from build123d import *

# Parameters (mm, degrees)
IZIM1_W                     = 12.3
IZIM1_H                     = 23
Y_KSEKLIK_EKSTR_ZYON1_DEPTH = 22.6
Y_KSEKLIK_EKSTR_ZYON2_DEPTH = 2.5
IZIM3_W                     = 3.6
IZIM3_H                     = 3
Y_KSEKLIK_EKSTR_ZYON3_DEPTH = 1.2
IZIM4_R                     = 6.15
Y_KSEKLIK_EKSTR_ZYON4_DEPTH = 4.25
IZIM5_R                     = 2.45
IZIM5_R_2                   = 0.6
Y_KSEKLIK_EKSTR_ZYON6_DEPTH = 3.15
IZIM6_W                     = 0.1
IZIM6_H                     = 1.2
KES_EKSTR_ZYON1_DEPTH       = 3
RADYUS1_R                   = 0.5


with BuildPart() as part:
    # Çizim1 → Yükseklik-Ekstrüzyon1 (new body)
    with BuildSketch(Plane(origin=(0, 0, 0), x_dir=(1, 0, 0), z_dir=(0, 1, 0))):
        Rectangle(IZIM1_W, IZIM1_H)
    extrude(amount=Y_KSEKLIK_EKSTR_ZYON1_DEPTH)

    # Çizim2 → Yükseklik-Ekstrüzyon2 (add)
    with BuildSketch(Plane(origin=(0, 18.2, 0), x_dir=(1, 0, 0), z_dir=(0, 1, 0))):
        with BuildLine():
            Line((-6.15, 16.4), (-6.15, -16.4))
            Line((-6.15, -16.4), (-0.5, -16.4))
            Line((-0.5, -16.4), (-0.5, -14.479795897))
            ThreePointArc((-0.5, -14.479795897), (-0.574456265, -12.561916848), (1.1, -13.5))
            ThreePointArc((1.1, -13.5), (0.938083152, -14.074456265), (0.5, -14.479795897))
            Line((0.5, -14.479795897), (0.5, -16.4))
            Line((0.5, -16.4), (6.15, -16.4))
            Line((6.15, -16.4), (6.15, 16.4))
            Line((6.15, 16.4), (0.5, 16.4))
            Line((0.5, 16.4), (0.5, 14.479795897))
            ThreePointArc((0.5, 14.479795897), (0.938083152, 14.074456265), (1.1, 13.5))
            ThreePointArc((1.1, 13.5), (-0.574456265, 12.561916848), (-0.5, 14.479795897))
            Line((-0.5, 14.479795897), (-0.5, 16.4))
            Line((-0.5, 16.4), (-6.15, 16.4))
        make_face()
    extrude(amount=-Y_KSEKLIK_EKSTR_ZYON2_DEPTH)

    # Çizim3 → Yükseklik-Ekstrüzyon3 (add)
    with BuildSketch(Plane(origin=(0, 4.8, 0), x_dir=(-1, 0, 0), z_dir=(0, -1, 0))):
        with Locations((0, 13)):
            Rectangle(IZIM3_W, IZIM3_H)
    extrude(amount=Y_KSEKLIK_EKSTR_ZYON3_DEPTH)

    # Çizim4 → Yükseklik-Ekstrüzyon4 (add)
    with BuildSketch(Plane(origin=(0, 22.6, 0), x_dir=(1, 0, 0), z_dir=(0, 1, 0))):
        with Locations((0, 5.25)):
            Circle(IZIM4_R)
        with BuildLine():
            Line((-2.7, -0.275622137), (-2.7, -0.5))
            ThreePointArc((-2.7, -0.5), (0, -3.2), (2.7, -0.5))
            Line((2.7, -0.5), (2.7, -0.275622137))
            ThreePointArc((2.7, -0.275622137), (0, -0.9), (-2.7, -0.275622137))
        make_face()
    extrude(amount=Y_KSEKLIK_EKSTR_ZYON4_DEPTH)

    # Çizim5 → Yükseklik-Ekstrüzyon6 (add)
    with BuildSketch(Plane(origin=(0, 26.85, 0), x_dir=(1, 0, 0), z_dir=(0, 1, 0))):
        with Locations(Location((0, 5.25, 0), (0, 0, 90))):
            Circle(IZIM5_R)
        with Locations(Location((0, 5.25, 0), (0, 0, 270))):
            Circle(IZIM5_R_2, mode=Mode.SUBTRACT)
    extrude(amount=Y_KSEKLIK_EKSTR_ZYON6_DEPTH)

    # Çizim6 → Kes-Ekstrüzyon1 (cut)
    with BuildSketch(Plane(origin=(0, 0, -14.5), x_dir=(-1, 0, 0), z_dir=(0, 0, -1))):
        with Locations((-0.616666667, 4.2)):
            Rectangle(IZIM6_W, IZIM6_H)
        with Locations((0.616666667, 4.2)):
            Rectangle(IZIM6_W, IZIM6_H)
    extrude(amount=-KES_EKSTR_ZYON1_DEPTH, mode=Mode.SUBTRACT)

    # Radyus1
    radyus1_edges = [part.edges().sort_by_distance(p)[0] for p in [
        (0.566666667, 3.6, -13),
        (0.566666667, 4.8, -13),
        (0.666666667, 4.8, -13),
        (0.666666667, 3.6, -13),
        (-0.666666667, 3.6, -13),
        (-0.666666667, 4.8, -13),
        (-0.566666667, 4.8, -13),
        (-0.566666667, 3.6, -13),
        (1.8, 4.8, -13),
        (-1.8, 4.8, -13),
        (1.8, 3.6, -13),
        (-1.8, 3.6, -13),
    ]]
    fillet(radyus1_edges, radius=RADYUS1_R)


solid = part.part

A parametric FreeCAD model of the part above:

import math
import FreeCAD as App
import Part
import Sketcher
from FreeCAD import Vector


def edges_at(feature, points):
    """Names of the edges that pass closest to the given points."""
    edges = feature.Shape.Edges
    near = lambda p: min(range(len(edges)), key=lambda i: edges[i].distToShape(Part.Vertex(*p))[0])
    return sorted({f"Edge{near(p) + 1}" for p in points})

doc = App.newDocument("Part")
body = doc.addObject("PartDesign::Body", "Body")

# Sketch on XZ plane
sketch1 = body.newObject("Sketcher::SketchObject", "Sketch")
sketch1.AttachmentSupport = (doc.getObject("XZ_Plane"), [""])
sketch1.MapMode = "FlatFace"
sketch1.addGeometry(Part.LineSegment(Vector(-6, -12, 0), Vector(-6, 12, 0)), False)
sketch1.addGeometry(Part.LineSegment(Vector(-6, 12, 0), Vector(6, 12, 0)), False)
sketch1.addGeometry(Part.LineSegment(Vector(6, 12, 0), Vector(6, -12, 0)), False)
sketch1.addGeometry(Part.LineSegment(Vector(6, -12, 0), Vector(-6, -12, 0)), False)
sketch1.addConstraint(Sketcher.Constraint("Coincident", 0, 2, 1, 1))
sketch1.addConstraint(Sketcher.Constraint("Coincident", 1, 2, 2, 1))
sketch1.addConstraint(Sketcher.Constraint("Coincident", 2, 2, 3, 1))
sketch1.addConstraint(Sketcher.Constraint("Coincident", 3, 2, 0, 1))
sketch1.addConstraint(Sketcher.Constraint("Vertical", 0))
sketch1.addConstraint(Sketcher.Constraint("Horizontal", 1))
sketch1.addConstraint(Sketcher.Constraint("Vertical", 2))
sketch1.addConstraint(Sketcher.Constraint("Horizontal", 3))
sketch1.addConstraint(Sketcher.Constraint("Symmetric", 0, 2, 2, 2, -1, 1))
sketch1.addConstraint(Sketcher.Constraint("DistanceY", 0, 1, 0, 2, 23.0))
sketch1.addConstraint(Sketcher.Constraint("DistanceX", 1, 1, 1, 2, 12.3))
pad1 = body.newObject("PartDesign::Pad", "Pad")
pad1.Profile = sketch1
pad1.Length = 22.6
pad1.Reversed = True

# Sketch on XZ plane
sketch2 = body.newObject("Sketcher::SketchObject", "Sketch001")
sketch2.AttachmentSupport = (doc.getObject("XZ_Plane"), [""])
sketch2.MapMode = "FlatFace"
sketch2.AttachmentOffset = App.Placement(Vector(0, 0, -18.2), App.Rotation())
sketch2.addGeometry(Part.LineSegment(Vector(-6.2, -16.4, 0), Vector(-6.2, 16.4, 0)), False)
sketch2.addGeometry(Part.LineSegment(Vector(-6.2, 16.4, 0), Vector(-0.5, 16.4, 0)), False)
sketch2.addGeometry(Part.LineSegment(Vector(-0.5, 16.4, 0), Vector(-0.5, 14.5, 0)), False)
sketch2.addGeometry(Part.ArcOfCircle(Part.Circle(Vector(0, 13.5, 0), Vector(0, 0, 1), 1.1), math.radians(117), math.radians(360)), False)
sketch2.addGeometry(Part.ArcOfCircle(Part.Circle(Vector(0, 13.5, 0), Vector(0, 0, 1), 1.1), math.radians(0), math.radians(63)), False)
sketch2.addGeometry(Part.LineSegment(Vector(0.5, 14.5, 0), Vector(0.5, 16.4, 0)), False)
sketch2.addGeometry(Part.LineSegment(Vector(0.5, 16.4, 0), Vector(6.2, 16.4, 0)), False)
sketch2.addGeometry(Part.LineSegment(Vector(6.2, 16.4, 0), Vector(6.2, -16.4, 0)), False)
sketch2.addGeometry(Part.LineSegment(Vector(6.2, -16.4, 0), Vector(0.5, -16.4, 0)), False)
sketch2.addGeometry(Part.LineSegment(Vector(0.5, -16.4, 0), Vector(0.5, -14.5, 0)), False)
sketch2.addGeometry(Part.ArcOfCircle(Part.Circle(Vector(0, -13.5, 0), Vector(0, 0, 1), 1.1), math.radians(-63), math.radians(0)), False)
sketch2.addGeometry(Part.ArcOfCircle(Part.Circle(Vector(0, -13.5, 0), Vector(0, 0, 1), 1.1), math.radians(0), math.radians(243)), False)
sketch2.addGeometry(Part.LineSegment(Vector(-0.5, -14.5, 0), Vector(-0.5, -16.4, 0)), False)
sketch2.addGeometry(Part.LineSegment(Vector(-0.5, -16.4, 0), Vector(-6.2, -16.4, 0)), False)
sketch2.addConstraint(Sketcher.Constraint("Coincident", 0, 2, 1, 1))
sketch2.addConstraint(Sketcher.Constraint("Coincident", 1, 2, 2, 1))
sketch2.addConstraint(Sketcher.Constraint("Coincident", 2, 2, 3, 1))
sketch2.addConstraint(Sketcher.Constraint("Tangent", 3, 2, 4, 1))
sketch2.addConstraint(Sketcher.Constraint("Coincident", 4, 2, 5, 1))
sketch2.addConstraint(Sketcher.Constraint("Coincident", 5, 2, 6, 1))
sketch2.addConstraint(Sketcher.Constraint("Coincident", 6, 2, 7, 1))
sketch2.addConstraint(Sketcher.Constraint("Coincident", 7, 2, 8, 1))
sketch2.addConstraint(Sketcher.Constraint("Coincident", 8, 2, 9, 1))
sketch2.addConstraint(Sketcher.Constraint("Coincident", 9, 2, 10, 1))
sketch2.addConstraint(Sketcher.Constraint("Tangent", 10, 2, 11, 1))
sketch2.addConstraint(Sketcher.Constraint("Coincident", 11, 2, 12, 1))
sketch2.addConstraint(Sketcher.Constraint("Coincident", 12, 2, 13, 1))
sketch2.addConstraint(Sketcher.Constraint("Coincident", 13, 2, 0, 1))
sketch2.addConstraint(Sketcher.Constraint("Vertical", 0))
sketch2.addConstraint(Sketcher.Constraint("Horizontal", 1))
sketch2.addConstraint(Sketcher.Constraint("Vertical", 2))
sketch2.addConstraint(Sketcher.Constraint("Vertical", 5))
sketch2.addConstraint(Sketcher.Constraint("Horizontal", 6))
sketch2.addConstraint(Sketcher.Constraint("Vertical", 7))
sketch2.addConstraint(Sketcher.Constraint("Horizontal", 8))
sketch2.addConstraint(Sketcher.Constraint("Vertical", 9))
sketch2.addConstraint(Sketcher.Constraint("Vertical", 12))
sketch2.addConstraint(Sketcher.Constraint("Horizontal", 13))
sketch2.addConstraint(Sketcher.Constraint("Equal", 3, 4))
sketch2.addConstraint(Sketcher.Constraint("Equal", 4, 10))
sketch2.addConstraint(Sketcher.Constraint("Equal", 10, 11))
sketch2.addConstraint(Sketcher.Constraint("Symmetric", 3, 3, 10, 3, -1, 1))
sketch2.addConstraint(Sketcher.Constraint("Symmetric", 0, 2, 7, 2, -1, 1))
sketch2.addConstraint(Sketcher.Constraint("Symmetric", 5, 2, 12, 2, -1, 1))
sketch2.addConstraint(Sketcher.Constraint("Symmetric", 2, 2, 4, 2, -2))
sketch2.addConstraint(Sketcher.Constraint("Symmetric", 8, 2, 12, 2, -2))
sketch2.addConstraint(Sketcher.Constraint("Horizontal", 4, 3, 3, 2))
sketch2.addConstraint(Sketcher.Constraint("Horizontal", 11, 3, 10, 2))
sketch2.addConstraint(Sketcher.Constraint("Radius", 3, 1.1))
sketch2.addConstraint(Sketcher.Constraint("DistanceY", 0, 1, 0, 2, 32.8))
sketch2.addConstraint(Sketcher.Constraint("DistanceY", 10, 3, 3, 3, 27.0))
sketch2.addConstraint(Sketcher.Constraint("DistanceX", 2, 2, 4, 2, 1.0))
sketch2.addConstraint(Sketcher.Constraint("DistanceX", 1, 1, 1, 2, 5.65))
pad2 = body.newObject("PartDesign::Pad", "Pad001")
pad2.Profile = sketch2
pad2.Length = 2.5

# Sketch on XZ plane
sketch3 = body.newObject("Sketcher::SketchObject", "Sketch002")
sketch3.AttachmentSupport = (doc.getObject("XZ_Plane"), [""])
sketch3.MapMode = "FlatFace"
sketch3.AttachmentOffset = App.Placement(Vector(0, 0, -4.8), App.Rotation())
sketch3.addGeometry(Part.LineSegment(Vector(1.8, -14.5, 0), Vector(1.8, -11.5, 0)), False)
sketch3.addGeometry(Part.LineSegment(Vector(1.8, -11.5, 0), Vector(-1.8, -11.5, 0)), False)
sketch3.addGeometry(Part.LineSegment(Vector(-1.8, -11.5, 0), Vector(-1.8, -14.5, 0)), False)
sketch3.addGeometry(Part.LineSegment(Vector(-1.8, -14.5, 0), Vector(1.8, -14.5, 0)), False)
sketch3.addConstraint(Sketcher.Constraint("Coincident", 0, 2, 1, 1))
sketch3.addConstraint(Sketcher.Constraint("Coincident", 1, 2, 2, 1))
sketch3.addConstraint(Sketcher.Constraint("Coincident", 2, 2, 3, 1))
sketch3.addConstraint(Sketcher.Constraint("Coincident", 3, 2, 0, 1))
sketch3.addConstraint(Sketcher.Constraint("Vertical", 0))
sketch3.addConstraint(Sketcher.Constraint("Horizontal", 1))
sketch3.addConstraint(Sketcher.Constraint("Vertical", 2))
sketch3.addConstraint(Sketcher.Constraint("Horizontal", 3))
sketch3.addConstraint(Sketcher.Constraint("DistanceY", 0, 1, 0, 2, 3.0))
sketch3.addConstraint(Sketcher.Constraint("DistanceX", 1, 2, 1, 1, 3.6))
sketch3.addConstraint(Sketcher.Constraint("DistanceX", -1, 1, 0, 2, 1.8))
sketch3.addConstraint(Sketcher.Constraint("DistanceY", 0, 2, -1, 1, 11.5))
pad3 = body.newObject("PartDesign::Pad", "Pad002")
pad3.Profile = sketch3
pad3.Length = 1.2

# Sketch on XZ plane
sketch4 = body.newObject("Sketcher::SketchObject", "Sketch003")
sketch4.AttachmentSupport = (doc.getObject("XZ_Plane"), [""])
sketch4.MapMode = "FlatFace"
sketch4.AttachmentOffset = App.Placement(Vector(0, 0, -22.6), App.Rotation())
sketch4.addGeometry(Part.LineSegment(Vector(-2.7, 0.28, 0), Vector(-2.7, 0.5, 0)), False)
sketch4.addGeometry(Part.ArcOfCircle(Part.Circle(Vector(0, 0.5, 0), Vector(0, 0, 1), 2.7), math.radians(0), math.radians(180)), False)
sketch4.addGeometry(Part.LineSegment(Vector(2.7, 0.5, 0), Vector(2.7, 0.28, 0)), False)
sketch4.addGeometry(Part.ArcOfCircle(Part.Circle(Vector(0, -5.25, 0), Vector(0, 0, 1), 6.15), math.radians(116), math.radians(424)), False)
sketch4.addConstraint(Sketcher.Constraint("Tangent", 0, 2, 1, 2))
sketch4.addConstraint(Sketcher.Constraint("Tangent", 1, 1, 2, 1))
sketch4.addConstraint(Sketcher.Constraint("Coincident", 2, 2, 3, 2))
sketch4.addConstraint(Sketcher.Constraint("Coincident", 3, 1, 0, 1))
sketch4.addConstraint(Sketcher.Constraint("Vertical", 0))
sketch4.addConstraint(Sketcher.Constraint("Vertical", 2))
sketch4.addConstraint(Sketcher.Constraint("Symmetric", 2, 2, 3, 1, -2))
sketch4.addConstraint(Sketcher.Constraint("Radius", 1, 2.7))
sketch4.addConstraint(Sketcher.Constraint("Radius", 3, 6.15))
sketch4.addConstraint(Sketcher.Constraint("DistanceY", -1, 1, 1, 3, 0.5))
sketch4.addConstraint(Sketcher.Constraint("DistanceY", 3, 3, -1, 1, 5.25))
pad4 = body.newObject("PartDesign::Pad", "Pad003")
pad4.Profile = sketch4
pad4.Length = 4.25
pad4.Reversed = True

# Sketch on XZ plane
sketch5 = body.newObject("Sketcher::SketchObject", "Sketch004")
sketch5.AttachmentSupport = (doc.getObject("XZ_Plane"), [""])
sketch5.MapMode = "FlatFace"
sketch5.AttachmentOffset = App.Placement(Vector(0, 0, -26.85), App.Rotation())
sketch5.addGeometry(Part.Circle(Vector(0, -5.2, 0), Vector(0, 0, 1), 2.5), False)
sketch5.addGeometry(Part.Circle(Vector(0, -5.2, 0), Vector(0, 0, 1), 0.6), False)
sketch5.addConstraint(Sketcher.Constraint("Coincident", 1, 3, 0, 3))
sketch5.addConstraint(Sketcher.Constraint("PointOnObject", 0, 3, -2))
sketch5.addConstraint(Sketcher.Constraint("Diameter", 0, 4.9))
sketch5.addConstraint(Sketcher.Constraint("Diameter", 1, 1.2))
sketch5.addConstraint(Sketcher.Constraint("DistanceY", 0, 3, -1, 1, 5.25))
pad5 = body.newObject("PartDesign::Pad", "Pad004")
pad5.Profile = sketch5
pad5.Length = 3.15
pad5.Reversed = True

# Sketch on XY plane
sketch6 = body.newObject("Sketcher::SketchObject", "Sketch005")
sketch6.AttachmentSupport = (doc.getObject("XY_Plane"), [""])
sketch6.MapMode = "FlatFace"
sketch6.AttachmentOffset = App.Placement(Vector(0, 0, -14.5), App.Rotation())
sketch6.addGeometry(Part.LineSegment(Vector(0.67, 4.8, 0), Vector(0.67, 3.6, 0)), False)
sketch6.addGeometry(Part.LineSegment(Vector(0.67, 3.6, 0), Vector(0.57, 3.6, 0)), False)
sketch6.addGeometry(Part.LineSegment(Vector(0.57, 3.6, 0), Vector(0.57, 4.8, 0)), False)
sketch6.addGeometry(Part.LineSegment(Vector(0.57, 4.8, 0), Vector(0.67, 4.8, 0)), False)
sketch6.addGeometry(Part.LineSegment(Vector(-0.57, 4.8, 0), Vector(-0.57, 3.6, 0)), False)
sketch6.addGeometry(Part.LineSegment(Vector(-0.57, 3.6, 0), Vector(-0.67, 3.6, 0)), False)
sketch6.addGeometry(Part.LineSegment(Vector(-0.67, 3.6, 0), Vector(-0.67, 4.8, 0)), False)
sketch6.addGeometry(Part.LineSegment(Vector(-0.67, 4.8, 0), Vector(-0.57, 4.8, 0)), False)
sketch6.addConstraint(Sketcher.Constraint("Coincident", 0, 2, 1, 1))
sketch6.addConstraint(Sketcher.Constraint("Coincident", 1, 2, 2, 1))
sketch6.addConstraint(Sketcher.Constraint("Coincident", 2, 2, 3, 1))
sketch6.addConstraint(Sketcher.Constraint("Coincident", 3, 2, 0, 1))
sketch6.addConstraint(Sketcher.Constraint("Coincident", 4, 2, 5, 1))
sketch6.addConstraint(Sketcher.Constraint("Coincident", 5, 2, 6, 1))
sketch6.addConstraint(Sketcher.Constraint("Coincident", 6, 2, 7, 1))
sketch6.addConstraint(Sketcher.Constraint("Coincident", 7, 2, 4, 1))
sketch6.addConstraint(Sketcher.Constraint("Vertical", 0))
sketch6.addConstraint(Sketcher.Constraint("Horizontal", 1))
sketch6.addConstraint(Sketcher.Constraint("Vertical", 2))
sketch6.addConstraint(Sketcher.Constraint("Horizontal", 3))
sketch6.addConstraint(Sketcher.Constraint("Vertical", 4))
sketch6.addConstraint(Sketcher.Constraint("Horizontal", 5))
sketch6.addConstraint(Sketcher.Constraint("Vertical", 6))
sketch6.addConstraint(Sketcher.Constraint("Horizontal", 7))
sketch6.addConstraint(Sketcher.Constraint("Symmetric", 1, 2, 4, 2, -2))
sketch6.addConstraint(Sketcher.Constraint("Symmetric", 3, 2, 6, 2, -2))
sketch6.addConstraint(Sketcher.Constraint("DistanceX", 1, 2, 1, 1, 0.1))
sketch6.addConstraint(Sketcher.Constraint("DistanceY", 0, 2, 0, 1, 1.2))
sketch6.addConstraint(Sketcher.Constraint("DistanceY", -1, 1, 0, 2, 3.6))
sketch6.addConstraint(Sketcher.Constraint("DistanceX", -1, 1, 0, 2, 0.666667))
pocket1 = body.newObject("PartDesign::Pocket", "Pocket")
pocket1.Profile = sketch6
pocket1.Length = 3
pocket1.Reversed = True
doc.recompute()

fillet = body.newObject("PartDesign::Fillet", "Fillet")
fillet.Base = (pocket1, edges_at(pocket1, [
    (0.567, 3.6, -13),
    (0.567, 4.8, -13),
    (0.667, 4.8, -13),
    (0.667, 3.6, -13),
    (-0.667, 3.6, -13),
    (-0.667, 4.8, -13),
    (-0.567, 4.8, -13),
    (-0.567, 3.6, -13),
    (1.8, 4.8, -13),
    (-1.8, 4.8, -13),
    (1.8, 3.6, -13),
    (-1.8, 3.6, -13),
]))
fillet.Radius = 0.5

doc.recompute()
